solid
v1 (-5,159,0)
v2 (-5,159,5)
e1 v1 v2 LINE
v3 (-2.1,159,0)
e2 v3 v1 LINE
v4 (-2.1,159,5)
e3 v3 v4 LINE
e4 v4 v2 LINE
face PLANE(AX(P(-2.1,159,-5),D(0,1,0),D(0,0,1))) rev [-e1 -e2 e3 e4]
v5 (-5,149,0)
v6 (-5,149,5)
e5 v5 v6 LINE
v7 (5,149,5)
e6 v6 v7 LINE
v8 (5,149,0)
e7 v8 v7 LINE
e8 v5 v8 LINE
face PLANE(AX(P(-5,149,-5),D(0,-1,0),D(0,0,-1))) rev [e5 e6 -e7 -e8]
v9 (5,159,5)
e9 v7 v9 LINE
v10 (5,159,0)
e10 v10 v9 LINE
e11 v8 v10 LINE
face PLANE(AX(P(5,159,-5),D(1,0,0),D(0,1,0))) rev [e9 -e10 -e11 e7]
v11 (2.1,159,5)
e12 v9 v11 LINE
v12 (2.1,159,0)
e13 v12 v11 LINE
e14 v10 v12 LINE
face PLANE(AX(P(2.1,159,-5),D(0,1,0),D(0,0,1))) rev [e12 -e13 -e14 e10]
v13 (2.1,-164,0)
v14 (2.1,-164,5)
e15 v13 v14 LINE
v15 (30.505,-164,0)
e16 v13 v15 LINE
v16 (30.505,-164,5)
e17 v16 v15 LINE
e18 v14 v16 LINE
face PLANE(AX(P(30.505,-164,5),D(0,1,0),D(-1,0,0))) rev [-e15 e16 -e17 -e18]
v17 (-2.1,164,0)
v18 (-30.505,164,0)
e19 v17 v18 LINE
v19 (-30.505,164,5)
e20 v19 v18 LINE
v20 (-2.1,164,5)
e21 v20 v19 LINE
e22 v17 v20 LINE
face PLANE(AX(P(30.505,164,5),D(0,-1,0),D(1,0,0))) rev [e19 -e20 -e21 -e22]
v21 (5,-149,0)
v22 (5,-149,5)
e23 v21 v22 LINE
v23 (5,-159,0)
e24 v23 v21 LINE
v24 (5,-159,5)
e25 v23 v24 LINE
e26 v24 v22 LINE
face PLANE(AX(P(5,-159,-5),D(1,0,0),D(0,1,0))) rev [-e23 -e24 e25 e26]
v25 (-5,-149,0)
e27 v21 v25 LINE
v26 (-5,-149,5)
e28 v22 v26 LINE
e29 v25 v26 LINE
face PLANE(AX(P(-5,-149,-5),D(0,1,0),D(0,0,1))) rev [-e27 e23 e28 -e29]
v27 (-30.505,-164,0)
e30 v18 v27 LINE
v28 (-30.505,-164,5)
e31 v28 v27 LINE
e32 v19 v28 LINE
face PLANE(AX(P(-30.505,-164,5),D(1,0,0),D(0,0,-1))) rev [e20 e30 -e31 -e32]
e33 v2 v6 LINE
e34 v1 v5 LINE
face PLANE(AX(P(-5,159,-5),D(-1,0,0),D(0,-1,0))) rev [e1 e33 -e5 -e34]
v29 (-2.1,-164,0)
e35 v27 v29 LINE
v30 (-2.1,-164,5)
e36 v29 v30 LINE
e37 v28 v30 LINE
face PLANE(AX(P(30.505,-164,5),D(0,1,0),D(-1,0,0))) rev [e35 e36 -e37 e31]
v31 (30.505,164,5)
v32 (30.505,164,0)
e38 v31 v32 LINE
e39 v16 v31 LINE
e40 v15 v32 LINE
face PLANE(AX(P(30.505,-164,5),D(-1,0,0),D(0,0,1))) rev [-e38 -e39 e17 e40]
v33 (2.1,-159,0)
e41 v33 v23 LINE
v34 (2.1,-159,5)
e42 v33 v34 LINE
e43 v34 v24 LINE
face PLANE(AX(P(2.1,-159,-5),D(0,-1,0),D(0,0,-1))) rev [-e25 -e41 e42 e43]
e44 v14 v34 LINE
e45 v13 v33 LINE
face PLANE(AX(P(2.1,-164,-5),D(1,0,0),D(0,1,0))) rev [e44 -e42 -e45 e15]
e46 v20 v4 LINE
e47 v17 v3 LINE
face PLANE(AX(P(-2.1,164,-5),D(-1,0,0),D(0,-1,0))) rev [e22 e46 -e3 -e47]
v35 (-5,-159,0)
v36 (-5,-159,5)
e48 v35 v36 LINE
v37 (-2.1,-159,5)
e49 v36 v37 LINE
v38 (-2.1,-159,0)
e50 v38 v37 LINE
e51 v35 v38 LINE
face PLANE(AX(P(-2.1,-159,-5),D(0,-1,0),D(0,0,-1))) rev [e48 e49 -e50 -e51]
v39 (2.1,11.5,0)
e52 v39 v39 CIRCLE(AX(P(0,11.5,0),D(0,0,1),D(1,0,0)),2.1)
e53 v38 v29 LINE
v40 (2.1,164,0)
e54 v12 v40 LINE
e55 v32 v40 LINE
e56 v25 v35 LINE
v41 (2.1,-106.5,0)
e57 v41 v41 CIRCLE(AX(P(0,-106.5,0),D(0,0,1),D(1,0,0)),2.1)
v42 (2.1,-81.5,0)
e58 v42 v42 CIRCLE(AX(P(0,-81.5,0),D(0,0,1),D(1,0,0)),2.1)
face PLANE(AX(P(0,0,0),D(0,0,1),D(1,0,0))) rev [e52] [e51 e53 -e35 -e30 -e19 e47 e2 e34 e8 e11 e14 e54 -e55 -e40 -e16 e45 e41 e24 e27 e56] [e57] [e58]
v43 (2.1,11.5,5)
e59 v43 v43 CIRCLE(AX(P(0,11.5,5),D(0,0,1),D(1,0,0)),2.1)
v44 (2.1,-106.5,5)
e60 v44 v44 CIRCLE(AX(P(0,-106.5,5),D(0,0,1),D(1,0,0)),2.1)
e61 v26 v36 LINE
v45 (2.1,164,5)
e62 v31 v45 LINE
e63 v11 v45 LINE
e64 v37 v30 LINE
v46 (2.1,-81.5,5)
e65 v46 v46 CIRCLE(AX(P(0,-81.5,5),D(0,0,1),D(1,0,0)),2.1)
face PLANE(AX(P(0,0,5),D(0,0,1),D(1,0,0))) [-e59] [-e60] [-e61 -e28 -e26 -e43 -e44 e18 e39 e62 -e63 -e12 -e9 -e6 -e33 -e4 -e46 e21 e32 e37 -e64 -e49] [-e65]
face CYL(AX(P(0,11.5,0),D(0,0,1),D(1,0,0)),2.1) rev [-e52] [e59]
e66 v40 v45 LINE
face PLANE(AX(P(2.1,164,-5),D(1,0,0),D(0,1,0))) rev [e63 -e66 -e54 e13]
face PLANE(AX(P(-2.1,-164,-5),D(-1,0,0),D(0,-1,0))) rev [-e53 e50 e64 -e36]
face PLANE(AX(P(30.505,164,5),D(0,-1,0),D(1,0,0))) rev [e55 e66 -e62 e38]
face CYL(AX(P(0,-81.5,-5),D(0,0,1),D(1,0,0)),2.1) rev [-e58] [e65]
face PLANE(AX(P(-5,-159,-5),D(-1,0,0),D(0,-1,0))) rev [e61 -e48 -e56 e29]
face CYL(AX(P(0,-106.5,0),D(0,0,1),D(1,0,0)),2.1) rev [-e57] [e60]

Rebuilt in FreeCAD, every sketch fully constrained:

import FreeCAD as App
import Part
import Sketcher
Q = App.Units.Quantity

doc = App.newDocument("Part")
body = doc.addObject("PartDesign::Body", "Body")

sketch1 = doc.addObject("Sketcher::SketchObject", "Sketch")
body.addObject(sketch1)
sketch1.AttachmentSupport = (doc.XY_Plane, [""])
sketch1.MapMode = "FlatFace"
sketch1.addGeometry([
    Part.LineSegment(App.Vector(-30.505, 164, 0), App.Vector(-30.505, -164, 0)),
    Part.LineSegment(App.Vector(-30.505, -164, 0), App.Vector(30.505, -164, 0)),
    Part.LineSegment(App.Vector(30.505, -164, 0), App.Vector(30.505, 164, 0)),
    Part.LineSegment(App.Vector(30.505, 164, 0), App.Vector(-30.505, 164, 0)),
], False)
sketch1.addConstraint([
    Sketcher.Constraint("Coincident", 0, 2, 1, 1),
    Sketcher.Constraint("Coincident", 1, 2, 2, 1),
    Sketcher.Constraint("Coincident", 2, 2, 3, 1),
    Sketcher.Constraint("Coincident", 3, 2, 0, 1),
    Sketcher.Constraint("Vertical", 0),
    Sketcher.Constraint("Horizontal", 1),
    Sketcher.Constraint("Vertical", 2),
    Sketcher.Constraint("Horizontal", 3),
    Sketcher.Constraint("Symmetric", 0, 2, 2, 2, -1, 1),
    Sketcher.Constraint("DistanceY", 0, 2, 0, 1, Q("328 mm")),
    Sketcher.Constraint("DistanceX", 1, 1, 1, 2, Q("61.01 mm")),
])
pad1 = doc.addObject("PartDesign::Pad", "Pad")
body.addObject(pad1)
pad1.Profile = sketch1
pad1.Length = 5

sketch2 = doc.addObject("Sketcher::SketchObject", "Sketch001")
body.addObject(sketch2)
sketch2.AttachmentSupport = (doc.XY_Plane, [""])
sketch2.MapMode = "FlatFace"
sketch2.AttachmentOffset = App.Placement(App.Vector(0, 0, 5), App.Rotation())
sketch2.addGeometry(Part.Circle(App.Vector(0, -81.5, 0), App.Vector(0, 0, 1), 2.1), False)
sketch2.addConstraint([
    Sketcher.Constraint("PointOnObject", 0, 3, -2),
    Sketcher.Constraint("Diameter", 0, Q("4.2 mm")),
    Sketcher.Constraint("DistanceY", 0, 3, -1, 1, Q("81.5 mm")),
])
pocket1 = doc.addObject("PartDesign::Pocket", "Pocket")
body.addObject(pocket1)
pocket1.Profile = sketch2
pocket1.Length = 10

sketch3 = doc.addObject("Sketcher::SketchObject", "Sketch002")
body.addObject(sketch3)
sketch3.AttachmentSupport = (doc.XY_Plane, [""])
sketch3.MapMode = "FlatFace"
sketch3.AttachmentOffset = App.Placement(App.Vector(0, 0, 5), App.Rotation())
sketch3.addGeometry([
    Part.LineSegment(App.Vector(-2.1, -159, 0), App.Vector(-2.1, -164, 0)),
    Part.LineSegment(App.Vector(-2.1, -164, 0), App.Vector(2.1, -164, 0)),
    Part.LineSegment(App.Vector(2.1, -164, 0), App.Vector(2.1, -159, 0)),
    Part.LineSegment(App.Vector(2.1, -159, 0), App.Vector(5, -159, 0)),
    Part.LineSegment(App.Vector(5, -159, 0), App.Vector(5, -149, 0)),
    Part.LineSegment(App.Vector(5, -149, 0), App.Vector(-5, -149, 0)),
    Part.LineSegment(App.Vector(-5, -149, 0), App.Vector(-5, -159, 0)),
    Part.LineSegment(App.Vector(-5, -159, 0), App.Vector(-2.1, -159, 0)),
    Part.LineSegment(App.Vector(2.1, 159, 0), App.Vector(2.1, 164, 0)),
    Part.LineSegment(App.Vector(2.1, 164, 0), App.Vector(-2.1, 164, 0)),
    Part.LineSegment(App.Vector(-2.1, 164, 0), App.Vector(-2.1, 159, 0)),
    Part.LineSegment(App.Vector(-2.1, 159, 0), App.Vector(-5, 159, 0)),
    Part.LineSegment(App.Vector(-5, 159, 0), App.Vector(-5, 149, 0)),
    Part.LineSegment(App.Vector(-5, 149, 0), App.Vector(5, 149, 0)),
    Part.LineSegment(App.Vector(5, 149, 0), App.Vector(5, 159, 0)),
    Part.LineSegment(App.Vector(5, 159, 0), App.Vector(2.1, 159, 0)),
], False)
sketch3.addConstraint([
    Sketcher.Constraint("Coincident", 0, 2, 1, 1),
    Sketcher.Constraint("Coincident", 1, 2, 2, 1),
    Sketcher.Constraint("Coincident", 2, 2, 3, 1),
    Sketcher.Constraint("Coincident", 3, 2, 4, 1),
    Sketcher.Constraint("Coincident", 4, 2, 5, 1),
    Sketcher.Constraint("Coincident", 5, 2, 6, 1),
    Sketcher.Constraint("Coincident", 6, 2, 7, 1),
    Sketcher.Constraint("Coincident", 7, 2, 0, 1),
    Sketcher.Constraint("Coincident", 8, 2, 9, 1),
    Sketcher.Constraint("Coincident", 9, 2, 10, 1),
    Sketcher.Constraint("Coincident", 10, 2, 11, 1),
    Sketcher.Constraint("Coincident", 11, 2, 12, 1),
    Sketcher.Constraint("Coincident", 12, 2, 13, 1),
    Sketcher.Constraint("Coincident", 13, 2, 14, 1),
    Sketcher.Constraint("Coincident", 14, 2, 15, 1),
    Sketcher.Constraint("Coincident", 15, 2, 8, 1),
    Sketcher.Constraint("Vertical", 0),
    Sketcher.Constraint("Horizontal", 1),
    Sketcher.Constraint("Vertical", 2),
    Sketcher.Constraint("Horizontal", 3),
    Sketcher.Constraint("Vertical", 4),
    Sketcher.Constraint("Horizontal", 5),
    Sketcher.Constraint("Vertical", 6),
    Sketcher.Constraint("Horizontal", 7),
    Sketcher.Constraint("Vertical", 8),
    Sketcher.Constraint("Horizontal", 9),
    Sketcher.Constraint("Vertical", 10),
    Sketcher.Constraint("Horizontal", 11),
    Sketcher.Constraint("Vertical", 12),
    Sketcher.Constraint("Horizontal", 13),
    Sketcher.Constraint("Vertical", 14),
    Sketcher.Constraint("Horizontal", 15),
    Sketcher.Constraint("Symmetric", 0, 2, 8, 2, -1, 1),
    Sketcher.Constraint("Symmetric", 2, 2, 10, 2, -1, 1),
    Sketcher.Constraint("Symmetric", 4, 2, 12, 2, -1, 1),
    Sketcher.Constraint("Symmetric", 6, 2, 14, 2, -1, 1),
    Sketcher.Constraint("Symmetric", 3, 2, 6, 2, -2),
    Sketcher.Constraint("Vertical", 2, 2, 8, 2),
    Sketcher.Constraint("Equal", 13, 4),
    Sketcher.Constraint("DistanceX", 5, 2, 5, 1, Q("10 mm")),
    Sketcher.Constraint("DistanceY", 0, 2, 0, 1, Q("5 mm")),
    Sketcher.Constraint("DistanceX", 1, 1, 1, 2, Q("4.2 mm")),
    Sketcher.Constraint("DistanceY", 0, 2, -1, 1, Q("164 mm")),
])
pocket2 = doc.addObject("PartDesign::Pocket", "Pocket001")
body.addObject(pocket2)
pocket2.Profile = sketch3
pocket2.Length = 10

sketch4 = doc.addObject("Sketcher::SketchObject", "Sketch003")
body.addObject(sketch4)
sketch4.AttachmentSupport = (doc.XY_Plane, [""])
sketch4.MapMode = "FlatFace"
sketch4.AttachmentOffset = App.Placement(App.Vector(0, 0, 5), App.Rotation())
sketch4.addGeometry(Part.Circle(App.Vector(0, -106.5, 0), App.Vector(0, 0, 1), 2.1), False)
sketch4.addConstraint([
    Sketcher.Constraint("PointOnObject", 0, 3, -2),
    Sketcher.Constraint("Diameter", 0, Q("4.2 mm")),
    Sketcher.Constraint("DistanceY", 0, 3, -1, 1, Q("106.5 mm")),
])
pocket3 = doc.addObject("PartDesign::Pocket", "Pocket002")
body.addObject(pocket3)
pocket3.Profile = sketch4
pocket3.Length = 5

sketch5 = doc.addObject("Sketcher::SketchObject", "Sketch004")
body.addObject(sketch5)
sketch5.AttachmentSupport = (doc.XY_Plane, [""])
sketch5.MapMode = "FlatFace"
sketch5.AttachmentOffset = App.Placement(App.Vector(0, 0, 5), App.Rotation())
sketch5.addGeometry(Part.Circle(App.Vector(0, 11.5, 0), App.Vector(0, 0, 1), 2.1), False)
sketch5.addConstraint([
    Sketcher.Constraint("PointOnObject", 0, 3, -2),
    Sketcher.Constraint("Diameter", 0, Q("4.2 mm")),
    Sketcher.Constraint("DistanceY", -1, 1, 0, 3, Q("11.5 mm")),
])
pocket4 = doc.addObject("PartDesign::Pocket", "Pocket003")
body.addObject(pocket4)
pocket4.Profile = sketch5
pocket4.Length = 5

doc.recompute()
